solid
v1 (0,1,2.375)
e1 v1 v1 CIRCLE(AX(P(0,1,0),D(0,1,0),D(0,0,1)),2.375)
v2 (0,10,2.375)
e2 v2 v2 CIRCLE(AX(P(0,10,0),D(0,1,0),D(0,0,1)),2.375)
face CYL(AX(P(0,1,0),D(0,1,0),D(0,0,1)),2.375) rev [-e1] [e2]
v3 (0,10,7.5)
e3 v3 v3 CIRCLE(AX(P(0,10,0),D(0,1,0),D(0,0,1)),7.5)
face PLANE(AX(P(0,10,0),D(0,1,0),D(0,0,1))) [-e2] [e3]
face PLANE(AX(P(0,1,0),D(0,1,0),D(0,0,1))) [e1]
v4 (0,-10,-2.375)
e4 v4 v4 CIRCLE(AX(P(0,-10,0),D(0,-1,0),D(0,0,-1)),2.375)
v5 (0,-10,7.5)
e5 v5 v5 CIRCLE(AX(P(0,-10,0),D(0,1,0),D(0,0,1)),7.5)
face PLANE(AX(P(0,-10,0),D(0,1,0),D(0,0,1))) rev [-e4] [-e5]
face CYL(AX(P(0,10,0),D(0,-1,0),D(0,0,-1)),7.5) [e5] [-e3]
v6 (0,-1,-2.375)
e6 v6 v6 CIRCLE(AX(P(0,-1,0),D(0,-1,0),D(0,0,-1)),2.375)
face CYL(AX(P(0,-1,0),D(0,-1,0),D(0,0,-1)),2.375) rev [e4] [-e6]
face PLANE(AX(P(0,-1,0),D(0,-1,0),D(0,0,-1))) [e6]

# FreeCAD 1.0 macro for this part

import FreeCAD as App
import Part
import Sketcher

V = App.Vector
Q = App.Units.Quantity

doc = App.newDocument("Part")
body = doc.addObject("PartDesign::Body", "Body")

sketch1 = body.newObject("Sketcher::SketchObject", "Sketch")
sketch1.AttachmentSupport = (doc.getObject("XZ_Plane"), [""])
sketch1.MapMode = "FlatFace"
sketch1.addGeometry(Part.Circle(V(0, 0, 0), V(0, 0, 1), 8), False)
sketch1.addConstraint(Sketcher.Constraint("Coincident", 0, 3, -1, 1))
sketch1.addConstraint(Sketcher.Constraint("Diameter", 0, Q("15 mm")))
pad1 = body.newObject("PartDesign::Pad", "Pad")
pad1.Profile = sketch1
pad1.Length = 20
pad1.Midplane = True

sketch2 = body.newObject("Sketcher::SketchObject", "Sketch001")
sketch2.AttachmentSupport = (doc.getObject("XZ_Plane"), [""])
sketch2.MapMode = "FlatFace"
sketch2.AttachmentOffset = App.Placement(V(0, 0, -10), App.Rotation())
sketch2.addGeometry(Part.Circle(V(0, 0, 0), V(0, 0, 1), 2.4), False)
sketch2.addConstraint(Sketcher.Constraint("Coincident", 0, 3, -1, 1))
sketch2.addConstraint(Sketcher.Constraint("Diameter", 0, Q("4.75 mm")))
pocket1 = body.newObject("PartDesign::Pocket", "Pocket")
pocket1.Profile = sketch2
pocket1.Length = 9
pocket1.Reversed = True

sketch3 = body.newObject("Sketcher::SketchObject", "Sketch002")
sketch3.AttachmentSupport = (doc.getObject("XZ_Plane"), [""])
sketch3.MapMode = "FlatFace"
sketch3.AttachmentOffset = App.Placement(V(0, 0, 10), App.Rotation())
sketch3.addGeometry(Part.Circle(V(0, 0, 0), V(0, 0, 1), 2.4), False)
sketch3.addConstraint(Sketcher.Constraint("Coincident", 0, 3, -1, 1))
sketch3.addConstraint(Sketcher.Constraint("Diameter", 0, Q("4.75 mm")))
pocket2 = body.newObject("PartDesign::Pocket", "Pocket001")
pocket2.Profile = sketch3
pocket2.Length = 9

doc.recompute()
